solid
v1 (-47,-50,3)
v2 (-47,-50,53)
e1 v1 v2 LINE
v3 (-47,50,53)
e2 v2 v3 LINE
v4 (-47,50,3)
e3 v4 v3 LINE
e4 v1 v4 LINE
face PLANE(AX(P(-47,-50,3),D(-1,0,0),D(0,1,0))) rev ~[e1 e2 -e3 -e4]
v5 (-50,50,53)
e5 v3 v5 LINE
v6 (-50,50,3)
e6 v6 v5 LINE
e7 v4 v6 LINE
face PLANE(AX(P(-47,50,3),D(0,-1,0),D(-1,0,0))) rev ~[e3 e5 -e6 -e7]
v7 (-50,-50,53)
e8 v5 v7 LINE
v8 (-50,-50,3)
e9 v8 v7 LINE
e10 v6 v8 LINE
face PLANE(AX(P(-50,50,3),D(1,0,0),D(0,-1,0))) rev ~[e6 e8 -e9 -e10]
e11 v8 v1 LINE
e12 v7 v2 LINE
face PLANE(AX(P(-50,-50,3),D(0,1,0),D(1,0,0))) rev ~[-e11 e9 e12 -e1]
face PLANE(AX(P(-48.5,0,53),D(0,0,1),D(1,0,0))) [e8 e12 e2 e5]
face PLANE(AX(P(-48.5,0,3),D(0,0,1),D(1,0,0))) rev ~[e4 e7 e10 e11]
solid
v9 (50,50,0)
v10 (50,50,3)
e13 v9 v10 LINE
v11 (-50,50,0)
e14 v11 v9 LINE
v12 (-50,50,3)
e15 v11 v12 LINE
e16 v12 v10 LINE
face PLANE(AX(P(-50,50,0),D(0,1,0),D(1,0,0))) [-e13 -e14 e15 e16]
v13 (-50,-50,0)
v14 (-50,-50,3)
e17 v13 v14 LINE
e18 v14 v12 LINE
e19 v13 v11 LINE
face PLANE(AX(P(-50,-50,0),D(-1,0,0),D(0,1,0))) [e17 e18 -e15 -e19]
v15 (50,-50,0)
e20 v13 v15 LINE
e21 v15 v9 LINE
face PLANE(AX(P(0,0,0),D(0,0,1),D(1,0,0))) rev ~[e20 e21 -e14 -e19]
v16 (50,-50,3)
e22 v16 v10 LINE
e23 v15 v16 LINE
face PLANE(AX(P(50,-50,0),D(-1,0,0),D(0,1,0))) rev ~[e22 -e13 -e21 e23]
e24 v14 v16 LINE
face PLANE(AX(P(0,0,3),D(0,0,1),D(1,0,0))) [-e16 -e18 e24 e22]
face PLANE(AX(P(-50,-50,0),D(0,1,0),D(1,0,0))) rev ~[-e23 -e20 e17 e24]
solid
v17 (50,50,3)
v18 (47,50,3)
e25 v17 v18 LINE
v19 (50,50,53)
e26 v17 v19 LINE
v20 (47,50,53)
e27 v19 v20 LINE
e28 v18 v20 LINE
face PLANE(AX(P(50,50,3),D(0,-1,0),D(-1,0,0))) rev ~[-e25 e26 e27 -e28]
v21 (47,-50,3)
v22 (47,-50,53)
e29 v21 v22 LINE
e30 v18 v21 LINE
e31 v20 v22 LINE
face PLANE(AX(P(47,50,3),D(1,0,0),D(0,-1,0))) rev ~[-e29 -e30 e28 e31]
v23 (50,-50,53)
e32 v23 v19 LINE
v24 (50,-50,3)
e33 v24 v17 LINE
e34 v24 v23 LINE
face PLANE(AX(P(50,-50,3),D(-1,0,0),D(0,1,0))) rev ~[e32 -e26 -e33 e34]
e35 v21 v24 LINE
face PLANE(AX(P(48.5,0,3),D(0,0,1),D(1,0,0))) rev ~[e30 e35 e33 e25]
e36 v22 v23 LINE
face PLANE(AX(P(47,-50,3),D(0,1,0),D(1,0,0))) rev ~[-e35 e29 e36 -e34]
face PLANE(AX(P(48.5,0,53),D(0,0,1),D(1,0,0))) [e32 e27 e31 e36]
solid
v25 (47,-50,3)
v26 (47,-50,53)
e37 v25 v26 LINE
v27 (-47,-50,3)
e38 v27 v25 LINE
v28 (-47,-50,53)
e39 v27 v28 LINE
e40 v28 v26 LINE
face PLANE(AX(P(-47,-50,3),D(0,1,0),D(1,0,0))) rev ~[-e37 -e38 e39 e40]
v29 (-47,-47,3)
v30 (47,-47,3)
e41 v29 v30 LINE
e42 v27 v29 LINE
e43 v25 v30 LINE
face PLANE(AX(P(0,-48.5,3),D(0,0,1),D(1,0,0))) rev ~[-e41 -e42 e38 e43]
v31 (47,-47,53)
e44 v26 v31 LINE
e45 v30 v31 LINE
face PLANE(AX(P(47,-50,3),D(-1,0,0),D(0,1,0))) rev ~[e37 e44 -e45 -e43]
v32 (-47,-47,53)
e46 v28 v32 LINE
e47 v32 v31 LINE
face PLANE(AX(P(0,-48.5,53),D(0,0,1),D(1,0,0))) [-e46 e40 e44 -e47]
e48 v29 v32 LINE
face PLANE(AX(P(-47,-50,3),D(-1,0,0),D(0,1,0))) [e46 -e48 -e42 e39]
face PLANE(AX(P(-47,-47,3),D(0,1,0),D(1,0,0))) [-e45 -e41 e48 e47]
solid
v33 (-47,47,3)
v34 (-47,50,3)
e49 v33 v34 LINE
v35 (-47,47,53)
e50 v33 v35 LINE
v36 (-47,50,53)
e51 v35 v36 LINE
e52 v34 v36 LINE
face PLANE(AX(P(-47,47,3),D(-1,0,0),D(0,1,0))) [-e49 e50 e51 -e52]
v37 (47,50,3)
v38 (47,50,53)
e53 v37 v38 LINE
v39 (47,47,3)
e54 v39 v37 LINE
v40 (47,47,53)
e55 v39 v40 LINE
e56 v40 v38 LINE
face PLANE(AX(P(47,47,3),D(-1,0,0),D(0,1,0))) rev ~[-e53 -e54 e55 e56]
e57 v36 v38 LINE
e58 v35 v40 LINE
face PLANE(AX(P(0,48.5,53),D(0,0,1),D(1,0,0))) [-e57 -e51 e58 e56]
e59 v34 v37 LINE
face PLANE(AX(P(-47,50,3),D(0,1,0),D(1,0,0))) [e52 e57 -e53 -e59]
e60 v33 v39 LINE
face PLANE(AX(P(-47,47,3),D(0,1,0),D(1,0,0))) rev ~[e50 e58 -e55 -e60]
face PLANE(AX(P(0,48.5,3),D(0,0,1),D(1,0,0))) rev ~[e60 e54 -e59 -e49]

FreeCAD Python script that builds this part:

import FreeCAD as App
import Part
import Sketcher

V = App.Vector


def add_polygon(sketch, points):
    """Adds a closed chain of lines whose ends are joined by coincident constraints."""
    first, n = sketch.GeometryCount, len(points)
    for a, b in zip(points, points[1:] + points[:1]):
        sketch.addGeometry(Part.LineSegment(App.Vector(*a, 0), App.Vector(*b, 0)), False)
    for i in range(n):
        sketch.addConstraint(Sketcher.Constraint("Coincident", first + i, 2, first + (i + 1) % n, 1))

doc = App.newDocument("Part")
params = doc.addObject("Spreadsheet::Sheet", "Params")
for row, (alias, value) in enumerate([
    ("sketch1_width", "100 mm"),
    ("pad1_length", "3 mm"),
    ("sketch2_width", "94 mm"),
    ("sketch2_height", "3 mm"),
    ("pad2_length", "50 mm"),
    ("sketch3_width", "3 mm"),
    ("sketch3_height", "100 mm"),
    ("pad3_length", "50 mm"),
], start=1):
    params.set(f"A{row}", alias)
    params.set(f"B{row}", "=" + value)
    params.setAlias(f"B{row}", alias)

body = doc.addObject("PartDesign::Body", "Body")

sketch1 = body.newObject("Sketcher::SketchObject", "Sketch")
sketch1.AttachmentSupport = (doc.getObject("XY_Plane"), [""])
sketch1.MapMode = "FlatFace"
add_polygon(sketch1, [(-50, 50), (-50, -50), (50, -50), (50, 50)])
sketch1.addConstraint([
    Sketcher.Constraint("Vertical", 0),
    Sketcher.Constraint("Horizontal", 1),
    Sketcher.Constraint("Vertical", 2),
    Sketcher.Constraint("Horizontal", 3),
    Sketcher.Constraint("Symmetric", 0, 2, 2, 2, -1, 1),
    Sketcher.Constraint("Equal", 3, 0),
    Sketcher.Constraint("DistanceX", 1, 1, 1, 2, 100.0),
])
sketch1.setExpression("Constraints[10]", "Params.sketch1_width")
pad1 = body.newObject("PartDesign::Pad", "Pad")
pad1.Profile = sketch1
pad1.setExpression("Length", "Params.pad1_length")
body2 = doc.addObject("PartDesign::Body", "Body001")
body2.AllowCompound = True

sketch2 = body2.newObject("Sketcher::SketchObject", "Sketch001")
sketch2.AttachmentSupport = (doc.getObject("XY_Plane001"), [""])
sketch2.MapMode = "FlatFace"
sketch2.AttachmentOffset = App.Placement(V(0, 0, 3), App.Rotation())
add_polygon(sketch2, [(-47, 50), (-47, 47), (47, 47), (47, 50)])
add_polygon(sketch2, [(-47, -47), (-47, -50), (47, -50), (47, -47)])
sketch2.addConstraint([
    Sketcher.Constraint("Vertical", 0),
    Sketcher.Constraint("Horizontal", 1),
    Sketcher.Constraint("Vertical", 2),
    Sketcher.Constraint("Horizontal", 3),
    Sketcher.Constraint("Vertical", 4),
    Sketcher.Constraint("Horizontal", 5),
    Sketcher.Constraint("Vertical", 6),
    Sketcher.Constraint("Horizontal", 7),
    Sketcher.Constraint("Symmetric", 2, 2, 4, 2, -1, 1),
    Sketcher.Constraint("Symmetric", 0, 2, 6, 2, -1, 1),
    Sketcher.Constraint("Vertical", 3, 2, 4, 2),
    Sketcher.Constraint("DistanceX", 1, 1, 1, 2, 94.0),
    Sketcher.Constraint("DistanceY", 0, 2, 0, 1, 3.0),
    Sketcher.Constraint("DistanceY", -1, 1, 0, 2, 47.0),
])
sketch2.setExpression("Constraints[19]", "Params.sketch2_width")
sketch2.setExpression("Constraints[20]", "Params.sketch2_height")
pad2 = body2.newObject("PartDesign::Pad", "Pad001")
pad2.Profile = sketch2
pad2.setExpression("Length", "Params.pad2_length")
body3 = doc.addObject("PartDesign::Body", "Body002")
body3.AllowCompound = True

sketch3 = body3.newObject("Sketcher::SketchObject", "Sketch002")
sketch3.AttachmentSupport = (doc.getObject("XY_Plane002"), [""])
sketch3.MapMode = "FlatFace"
sketch3.AttachmentOffset = App.Placement(V(0, 0, 3), App.Rotation())
add_polygon(sketch3, [(-47, -50), (-47, 50), (-50, 50), (-50, -50)])
add_polygon(sketch3, [(47, -50), (50, -50), (50, 50), (47, 50)])
sketch3.addConstraint([
    Sketcher.Constraint("Vertical", 0),
    Sketcher.Constraint("Horizontal", 1),
    Sketcher.Constraint("Vertical", 2),
    Sketcher.Constraint("Horizontal", 3),
    Sketcher.Constraint("Horizontal", 4),
    Sketcher.Constraint("Vertical", 5),
    Sketcher.Constraint("Horizontal", 6),
    Sketcher.Constraint("Vertical", 7),
    Sketcher.Constraint("Symmetric", 1, 2, 4, 2, -1, 1),
    Sketcher.Constraint("Symmetric", 3, 2, 6, 2, -1, 1),
    Sketcher.Constraint("Horizontal", 3, 2, 4, 2),
    Sketcher.Constraint("DistanceX", 1, 2, 1, 1, 3.0),
    Sketcher.Constraint("DistanceY", 0, 1, 0, 2, 100.0),
    Sketcher.Constraint("DistanceX", 0, 2, -1, 1, 47.0),
])
sketch3.setExpression("Constraints[19]", "Params.sketch3_width")
sketch3.setExpression("Constraints[20]", "Params.sketch3_height")
pad3 = body3.newObject("PartDesign::Pad", "Pad002")
pad3.Profile = sketch3
pad3.setExpression("Length", "Params.pad3_length")

doc.recompute()
